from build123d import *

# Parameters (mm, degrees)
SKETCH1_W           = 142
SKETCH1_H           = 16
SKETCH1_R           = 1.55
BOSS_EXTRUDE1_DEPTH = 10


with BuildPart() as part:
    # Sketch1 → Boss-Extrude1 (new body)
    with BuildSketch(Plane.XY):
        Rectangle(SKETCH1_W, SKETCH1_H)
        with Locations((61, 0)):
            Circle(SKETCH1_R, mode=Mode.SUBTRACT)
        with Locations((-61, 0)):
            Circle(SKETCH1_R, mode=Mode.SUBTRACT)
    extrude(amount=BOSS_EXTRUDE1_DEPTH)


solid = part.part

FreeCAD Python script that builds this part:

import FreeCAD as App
import Part
import Sketcher
from FreeCAD import Vector
Q = App.Units.Quantity

doc = App.newDocument("Part")
body = doc.addObject("PartDesign::Body", "Body")

# Sketch on XY plane
sketch1 = body.newObject("Sketcher::SketchObject", "Sketch")
sketch1.AttachmentSupport = (doc.getObject("XY_Plane"), [""])
sketch1.MapMode = "FlatFace"
sketch1.addGeometry([
    Part.LineSegment(Vector(-71, 8, 0), Vector(-71, -8, 0)),  # 0
    Part.LineSegment(Vector(-71, -8, 0), Vector(71, -8, 0)),  # 1
    Part.LineSegment(Vector(71, -8, 0), Vector(71, 8, 0)),  # 2
    Part.LineSegment(Vector(71, 8, 0), Vector(-71, 8, 0)),  # 3
    Part.Circle(Vector(-61, 0, 0), Vector(0, 0, 1), 1.6),  # 4
    Part.Circle(Vector(61, 0, 0), Vector(0, 0, 1), 1.6),  # 5
], False)
sketch1.addConstraint([
    Sketcher.Constraint("Coincident", 0, 2, 1, 1),
    Sketcher.Constraint("Coincident", 1, 2, 2, 1),
    Sketcher.Constraint("Coincident", 2, 2, 3, 1),
    Sketcher.Constraint("Coincident", 3, 2, 0, 1),
    Sketcher.Constraint("Vertical", 0),
    Sketcher.Constraint("Horizontal", 1),
    Sketcher.Constraint("Vertical", 2),
    Sketcher.Constraint("Horizontal", 3),
    Sketcher.Constraint("Equal", 4, 5),
    Sketcher.Constraint("Symmetric", 4, 3, 5, 3, -1, 1),
    Sketcher.Constraint("Symmetric", 0, 2, 2, 2, -1, 1),
    Sketcher.Constraint("PointOnObject", 4, 3, -1),
    Sketcher.Constraint("Diameter", 4, Q("3.1 mm")),
    Sketcher.Constraint("DistanceX", 1, 1, 1, 2, Q("142 mm")),
    Sketcher.Constraint("DistanceY", 0, 2, 0, 1, Q("16 mm")),
    Sketcher.Constraint("DistanceX", 4, 3, -1, 1, Q("61 mm")),
])
pad1 = body.newObject("PartDesign::Pad", "Pad")
pad1.Profile = sketch1
pad1.Length = 10

doc.recompute()
